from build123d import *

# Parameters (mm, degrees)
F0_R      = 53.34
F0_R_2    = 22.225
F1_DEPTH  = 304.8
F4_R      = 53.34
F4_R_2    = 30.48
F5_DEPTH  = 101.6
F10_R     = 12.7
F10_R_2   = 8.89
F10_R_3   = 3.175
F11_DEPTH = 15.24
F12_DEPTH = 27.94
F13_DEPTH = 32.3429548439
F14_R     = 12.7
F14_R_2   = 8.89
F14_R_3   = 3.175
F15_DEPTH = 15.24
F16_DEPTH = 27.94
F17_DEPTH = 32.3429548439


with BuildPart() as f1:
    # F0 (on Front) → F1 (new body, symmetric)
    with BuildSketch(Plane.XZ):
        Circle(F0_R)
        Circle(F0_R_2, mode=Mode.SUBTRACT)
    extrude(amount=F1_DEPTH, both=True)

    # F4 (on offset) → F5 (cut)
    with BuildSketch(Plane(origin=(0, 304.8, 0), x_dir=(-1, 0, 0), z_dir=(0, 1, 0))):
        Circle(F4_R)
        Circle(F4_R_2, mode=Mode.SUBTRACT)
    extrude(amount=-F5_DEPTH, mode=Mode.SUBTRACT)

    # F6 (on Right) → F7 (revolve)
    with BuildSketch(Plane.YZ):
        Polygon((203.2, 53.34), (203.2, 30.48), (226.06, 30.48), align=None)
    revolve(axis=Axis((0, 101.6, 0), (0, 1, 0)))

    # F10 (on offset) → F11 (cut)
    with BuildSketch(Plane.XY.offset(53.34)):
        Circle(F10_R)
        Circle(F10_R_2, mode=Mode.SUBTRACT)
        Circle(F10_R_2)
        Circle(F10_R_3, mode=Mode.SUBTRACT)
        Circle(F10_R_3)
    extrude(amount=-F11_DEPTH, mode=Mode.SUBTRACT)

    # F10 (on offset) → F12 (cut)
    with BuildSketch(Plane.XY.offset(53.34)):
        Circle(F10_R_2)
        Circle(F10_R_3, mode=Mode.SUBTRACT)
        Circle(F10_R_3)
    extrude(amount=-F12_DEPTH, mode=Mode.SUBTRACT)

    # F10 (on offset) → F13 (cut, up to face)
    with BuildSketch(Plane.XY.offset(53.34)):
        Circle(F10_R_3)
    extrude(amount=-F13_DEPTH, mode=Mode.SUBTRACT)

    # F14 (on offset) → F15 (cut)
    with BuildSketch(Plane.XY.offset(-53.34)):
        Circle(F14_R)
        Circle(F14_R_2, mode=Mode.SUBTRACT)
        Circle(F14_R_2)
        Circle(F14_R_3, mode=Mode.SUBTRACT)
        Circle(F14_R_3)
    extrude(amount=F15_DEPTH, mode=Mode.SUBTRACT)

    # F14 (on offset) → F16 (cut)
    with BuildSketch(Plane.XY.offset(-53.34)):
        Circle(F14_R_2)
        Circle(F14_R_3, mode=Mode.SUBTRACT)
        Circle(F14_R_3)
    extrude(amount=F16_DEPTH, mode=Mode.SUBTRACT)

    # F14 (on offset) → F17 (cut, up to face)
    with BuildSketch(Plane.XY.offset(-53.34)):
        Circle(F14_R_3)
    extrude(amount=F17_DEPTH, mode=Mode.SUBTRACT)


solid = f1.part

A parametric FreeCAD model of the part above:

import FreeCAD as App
import Part
import Sketcher
from FreeCAD import Vector
Q = App.Units.Quantity


def add_polygon(sketch, points):
    """Adds a closed chain of lines whose ends are joined by coincident constraints."""
    first, n = sketch.GeometryCount, len(points)
    for a, b in zip(points, points[1:] + points[:1]):
        sketch.addGeometry(Part.LineSegment(App.Vector(*a, 0), App.Vector(*b, 0)), False)
    for i in range(n):
        sketch.addConstraint(Sketcher.Constraint("Coincident", first + i, 2, first + (i + 1) % n, 1))

doc = App.newDocument("Part")
body = doc.addObject("PartDesign::Body", "Body")

# Sketch on XZ plane
sketch1 = body.newObject("Sketcher::SketchObject", "Sketch")
sketch1.AttachmentSupport = (doc.getObject("XZ_Plane"), [""])
sketch1.MapMode = "FlatFace"
sketch1.addGeometry([
    Part.Circle(Vector(0, 0, 0), Vector(0, 0, 1), 53.34),
    Part.Circle(Vector(0, 0, 0), Vector(0, 0, 1), 22.225),
], False)
sketch1.addConstraint([
    Sketcher.Constraint("Coincident", 0, 3, -1, 1),
    Sketcher.Constraint("Coincident", 1, 3, -1, 1),
    Sketcher.Constraint("Diameter", 0, Q("4.2 in")),
    Sketcher.Constraint("Diameter", 1, Q("1.75 in")),
])
pad1 = body.newObject("PartDesign::Pad", "Pad")
pad1.Profile = sketch1
pad1.Length = Q("24 in")
pad1.Midplane = True

# Sketch on XZ plane
sketch2 = body.newObject("Sketcher::SketchObject", "Sketch001")
sketch2.AttachmentSupport = (doc.getObject("XZ_Plane"), [""])
sketch2.MapMode = "FlatFace"
sketch2.AttachmentOffset = App.Placement(Vector(0, 0, -12 * 25.4), App.Rotation())
sketch2.addGeometry([
    Part.Circle(Vector(0, 0, 0), Vector(0, 0, 1), 53.34),
    Part.Circle(Vector(0, 0, 0), Vector(0, 0, 1), 30.48),
], False)
sketch2.addConstraint([
    Sketcher.Constraint("Coincident", 0, 3, -1, 1),
    Sketcher.Constraint("Coincident", 1, 3, -1, 1),
    Sketcher.Constraint("Diameter", 0, Q("4.2 in")),
    Sketcher.Constraint("Diameter", 1, Q("2.4 in")),
])
pocket1 = body.newObject("PartDesign::Pocket", "Pocket")
pocket1.Profile = sketch2
pocket1.Length = Q("4 in")
pocket1.Reversed = True

# Sketch on YZ plane
sketch3 = body.newObject("Sketcher::SketchObject", "Sketch002")
sketch3.AttachmentSupport = (doc.getObject("YZ_Plane"), [""])
sketch3.MapMode = "FlatFace"
add_polygon(sketch3, [(203.2, 53.34), (203.2, 30.48), (226.06, 30.48)])  # lines 0-2
sketch3.addConstraint([
    Sketcher.Constraint("Vertical", 0),
    Sketcher.Constraint("Horizontal", 1),
    Sketcher.Constraint("Equal", 1, 0),
    Sketcher.Constraint("DistanceX", 1, 1, 1, 2, Q("0.9 in")),
    Sketcher.Constraint("DistanceX", -1, 1, 0, 2, Q("8 in")),
    Sketcher.Constraint("DistanceY", -1, 1, 0, 2, Q("1.2 in")),
])
revolution = body.newObject("PartDesign::Revolution", "Revolution")
revolution.Profile = sketch3
revolution.ReferenceAxis = (sketch3, ["H_Axis"])
revolution.Angle = 360

# Sketch on XY plane
sketch4 = body.newObject("Sketcher::SketchObject", "Sketch003")
sketch4.AttachmentSupport = (doc.getObject("XY_Plane"), [""])
sketch4.MapMode = "FlatFace"
sketch4.AttachmentOffset = App.Placement(Vector(0, 0, 2.1 * 25.4), App.Rotation())
sketch4.addGeometry(Part.Circle(Vector(0, 0, 0), Vector(0, 0, 1), 12.7), False)
sketch4.addConstraint([
    Sketcher.Constraint("Coincident", 0, 3, -1, 1),
    Sketcher.Constraint("Diameter", 0, Q("1 in")),
])
pocket2 = body.newObject("PartDesign::Pocket", "Pocket001")
pocket2.Profile = sketch4
pocket2.Length = Q("0.6 in")

# Sketch on XY plane
sketch5 = body.newObject("Sketcher::SketchObject", "Sketch004")
sketch5.AttachmentSupport = (doc.getObject("XY_Plane"), [""])
sketch5.MapMode = "FlatFace"
sketch5.AttachmentOffset = App.Placement(Vector(0, 0, 2.1 * 25.4), App.Rotation())
sketch5.addGeometry(Part.Circle(Vector(0, 0, 0), Vector(0, 0, 1), 8.89), False)
sketch5.addConstraint([
    Sketcher.Constraint("Coincident", 0, 3, -1, 1),
    Sketcher.Constraint("Diameter", 0, Q("0.7 in")),
])
pocket3 = body.newObject("PartDesign::Pocket", "Pocket002")
pocket3.Profile = sketch5
pocket3.Length = Q("1.1 in")

# Sketch on XY plane
sketch6 = body.newObject("Sketcher::SketchObject", "Sketch005")
sketch6.AttachmentSupport = (doc.getObject("XY_Plane"), [""])
sketch6.MapMode = "FlatFace"
sketch6.AttachmentOffset = App.Placement(Vector(0, 0, 2.1 * 25.4), App.Rotation())
sketch6.addGeometry(Part.Circle(Vector(0, 0, 0), Vector(0, 0, 1), 3.175), False)
sketch6.addConstraint([
    Sketcher.Constraint("Coincident", 0, 3, -1, 1),
    Sketcher.Constraint("Diameter", 0, Q("0.25 in")),
])
pocket4 = body.newObject("PartDesign::Pocket", "Pocket003")
pocket4.Profile = sketch6
pocket4.Length = 32.342955

# Sketch on XY plane
sketch7 = body.newObject("Sketcher::SketchObject", "Sketch006")
sketch7.AttachmentSupport = (doc.getObject("XY_Plane"), [""])
sketch7.MapMode = "FlatFace"
sketch7.AttachmentOffset = App.Placement(Vector(0, 0, -2.1 * 25.4), App.Rotation())
sketch7.addGeometry(Part.Circle(Vector(0, 0, 0), Vector(0, 0, 1), 12.7), False)
sketch7.addConstraint([
    Sketcher.Constraint("Coincident", 0, 3, -1, 1),
    Sketcher.Constraint("Diameter", 0, Q("1 in")),
])
pocket5 = body.newObject("PartDesign::Pocket", "Pocket004")
pocket5.Profile = sketch7
pocket5.Length = Q("0.6 in")
pocket5.Reversed = True

# Sketch on XY plane
sketch8 = body.newObject("Sketcher::SketchObject", "Sketch007")
sketch8.AttachmentSupport = (doc.getObject("XY_Plane"), [""])
sketch8.MapMode = "FlatFace"
sketch8.AttachmentOffset = App.Placement(Vector(0, 0, -2.1 * 25.4), App.Rotation())
sketch8.addGeometry(Part.Circle(Vector(0, 0, 0), Vector(0, 0, 1), 8.89), False)
sketch8.addConstraint([
    Sketcher.Constraint("Coincident", 0, 3, -1, 1),
    Sketcher.Constraint("Diameter", 0, Q("0.7 in")),
])
pocket6 = body.newObject("PartDesign::Pocket", "Pocket005")
pocket6.Profile = sketch8
pocket6.Length = Q("1.1 in")
pocket6.Reversed = True

# Sketch on XY plane
sketch9 = body.newObject("Sketcher::SketchObject", "Sketch008")
sketch9.AttachmentSupport = (doc.getObject("XY_Plane"), [""])
sketch9.MapMode = "FlatFace"
sketch9.AttachmentOffset = App.Placement(Vector(0, 0, -2.1 * 25.4), App.Rotation())
sketch9.addGeometry(Part.Circle(Vector(0, 0, 0), Vector(0, 0, 1), 3.175), False)
sketch9.addConstraint([
    Sketcher.Constraint("Coincident", 0, 3, -1, 1),
    Sketcher.Constraint("Diameter", 0, Q("0.25 in")),
])
pocket7 = body.newObject("PartDesign::Pocket", "Pocket006")
pocket7.Profile = sketch9
pocket7.Length = 32.342955
pocket7.Reversed = True

doc.recompute()
